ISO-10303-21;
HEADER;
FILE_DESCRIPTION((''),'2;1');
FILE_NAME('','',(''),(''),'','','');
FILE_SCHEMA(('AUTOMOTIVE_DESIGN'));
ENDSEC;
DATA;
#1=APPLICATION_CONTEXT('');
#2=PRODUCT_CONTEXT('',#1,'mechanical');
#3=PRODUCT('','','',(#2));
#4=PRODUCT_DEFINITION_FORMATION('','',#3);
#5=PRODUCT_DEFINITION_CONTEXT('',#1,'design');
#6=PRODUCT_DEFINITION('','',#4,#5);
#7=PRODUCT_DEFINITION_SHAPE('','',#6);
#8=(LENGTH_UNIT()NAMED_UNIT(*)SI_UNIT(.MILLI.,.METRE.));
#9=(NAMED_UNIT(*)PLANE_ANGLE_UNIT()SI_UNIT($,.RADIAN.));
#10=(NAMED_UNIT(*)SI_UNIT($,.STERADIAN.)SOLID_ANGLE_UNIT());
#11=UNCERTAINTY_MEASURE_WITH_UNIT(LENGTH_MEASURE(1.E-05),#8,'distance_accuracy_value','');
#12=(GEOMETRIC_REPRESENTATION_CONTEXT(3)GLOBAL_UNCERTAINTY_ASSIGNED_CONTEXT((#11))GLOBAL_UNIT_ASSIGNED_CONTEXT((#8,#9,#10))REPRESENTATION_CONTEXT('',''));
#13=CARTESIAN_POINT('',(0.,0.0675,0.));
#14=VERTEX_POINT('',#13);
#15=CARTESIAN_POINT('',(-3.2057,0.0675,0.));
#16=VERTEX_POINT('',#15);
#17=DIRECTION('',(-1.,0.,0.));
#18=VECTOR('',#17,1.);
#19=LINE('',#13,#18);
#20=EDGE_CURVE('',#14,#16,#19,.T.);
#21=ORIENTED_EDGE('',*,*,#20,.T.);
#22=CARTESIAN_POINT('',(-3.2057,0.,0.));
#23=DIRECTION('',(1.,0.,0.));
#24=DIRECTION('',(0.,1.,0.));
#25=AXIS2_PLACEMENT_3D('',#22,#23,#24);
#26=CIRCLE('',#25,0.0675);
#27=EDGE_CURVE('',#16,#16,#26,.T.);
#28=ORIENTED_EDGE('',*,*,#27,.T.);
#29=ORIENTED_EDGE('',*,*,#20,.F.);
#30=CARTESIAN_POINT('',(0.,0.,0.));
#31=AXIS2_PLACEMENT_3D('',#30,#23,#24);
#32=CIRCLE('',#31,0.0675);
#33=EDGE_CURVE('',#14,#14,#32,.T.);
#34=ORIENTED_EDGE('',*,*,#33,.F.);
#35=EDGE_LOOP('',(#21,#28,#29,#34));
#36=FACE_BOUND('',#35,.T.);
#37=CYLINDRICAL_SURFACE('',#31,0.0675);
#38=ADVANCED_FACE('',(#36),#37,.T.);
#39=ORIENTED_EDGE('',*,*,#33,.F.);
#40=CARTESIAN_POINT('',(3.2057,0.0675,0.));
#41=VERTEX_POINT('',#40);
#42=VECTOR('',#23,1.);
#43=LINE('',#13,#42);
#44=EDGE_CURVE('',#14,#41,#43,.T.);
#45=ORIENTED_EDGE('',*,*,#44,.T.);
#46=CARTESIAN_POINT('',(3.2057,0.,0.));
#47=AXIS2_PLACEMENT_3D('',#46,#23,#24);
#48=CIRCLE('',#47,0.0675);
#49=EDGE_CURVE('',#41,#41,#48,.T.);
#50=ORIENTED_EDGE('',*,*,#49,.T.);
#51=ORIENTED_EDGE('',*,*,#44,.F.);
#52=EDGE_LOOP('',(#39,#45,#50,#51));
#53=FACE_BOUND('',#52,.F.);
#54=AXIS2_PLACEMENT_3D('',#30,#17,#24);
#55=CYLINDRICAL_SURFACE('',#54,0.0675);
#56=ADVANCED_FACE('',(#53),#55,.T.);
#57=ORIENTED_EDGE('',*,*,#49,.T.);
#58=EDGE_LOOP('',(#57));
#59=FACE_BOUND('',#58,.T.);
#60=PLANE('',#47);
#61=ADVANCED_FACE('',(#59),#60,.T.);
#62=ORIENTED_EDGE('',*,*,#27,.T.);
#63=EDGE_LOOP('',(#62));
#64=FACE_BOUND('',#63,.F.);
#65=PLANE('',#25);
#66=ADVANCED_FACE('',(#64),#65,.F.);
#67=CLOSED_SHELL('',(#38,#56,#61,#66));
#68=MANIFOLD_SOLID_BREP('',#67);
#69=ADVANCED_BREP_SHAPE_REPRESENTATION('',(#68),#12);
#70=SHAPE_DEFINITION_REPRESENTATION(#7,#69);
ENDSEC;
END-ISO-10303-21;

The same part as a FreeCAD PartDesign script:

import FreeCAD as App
import Part
import Sketcher
from FreeCAD import Vector

doc = App.newDocument("Part")
body = doc.addObject("PartDesign::Body", "Body")

sketch1 = doc.addObject("Sketcher::SketchObject", "Sketch")
body.addObject(sketch1)
sketch1.AttachmentSupport = (doc.YZ_Plane, [""])
sketch1.MapMode = "FlatFace"
sketch1.addGeometry(Part.Circle(Vector(0, 0, 0), Vector(0, 0, 1), 0.0675), False)
sketch1.addConstraint([
    Sketcher.Constraint("Coincident", 0, 3, -1, 1),
    Sketcher.Constraint("Diameter", 0, 0.135),
])
pad1 = doc.addObject("PartDesign::Pad", "Pad")
body.addObject(pad1)
pad1.Profile = sketch1
pad1.Length = 6.4114
pad1.Midplane = True

doc.recompute()
